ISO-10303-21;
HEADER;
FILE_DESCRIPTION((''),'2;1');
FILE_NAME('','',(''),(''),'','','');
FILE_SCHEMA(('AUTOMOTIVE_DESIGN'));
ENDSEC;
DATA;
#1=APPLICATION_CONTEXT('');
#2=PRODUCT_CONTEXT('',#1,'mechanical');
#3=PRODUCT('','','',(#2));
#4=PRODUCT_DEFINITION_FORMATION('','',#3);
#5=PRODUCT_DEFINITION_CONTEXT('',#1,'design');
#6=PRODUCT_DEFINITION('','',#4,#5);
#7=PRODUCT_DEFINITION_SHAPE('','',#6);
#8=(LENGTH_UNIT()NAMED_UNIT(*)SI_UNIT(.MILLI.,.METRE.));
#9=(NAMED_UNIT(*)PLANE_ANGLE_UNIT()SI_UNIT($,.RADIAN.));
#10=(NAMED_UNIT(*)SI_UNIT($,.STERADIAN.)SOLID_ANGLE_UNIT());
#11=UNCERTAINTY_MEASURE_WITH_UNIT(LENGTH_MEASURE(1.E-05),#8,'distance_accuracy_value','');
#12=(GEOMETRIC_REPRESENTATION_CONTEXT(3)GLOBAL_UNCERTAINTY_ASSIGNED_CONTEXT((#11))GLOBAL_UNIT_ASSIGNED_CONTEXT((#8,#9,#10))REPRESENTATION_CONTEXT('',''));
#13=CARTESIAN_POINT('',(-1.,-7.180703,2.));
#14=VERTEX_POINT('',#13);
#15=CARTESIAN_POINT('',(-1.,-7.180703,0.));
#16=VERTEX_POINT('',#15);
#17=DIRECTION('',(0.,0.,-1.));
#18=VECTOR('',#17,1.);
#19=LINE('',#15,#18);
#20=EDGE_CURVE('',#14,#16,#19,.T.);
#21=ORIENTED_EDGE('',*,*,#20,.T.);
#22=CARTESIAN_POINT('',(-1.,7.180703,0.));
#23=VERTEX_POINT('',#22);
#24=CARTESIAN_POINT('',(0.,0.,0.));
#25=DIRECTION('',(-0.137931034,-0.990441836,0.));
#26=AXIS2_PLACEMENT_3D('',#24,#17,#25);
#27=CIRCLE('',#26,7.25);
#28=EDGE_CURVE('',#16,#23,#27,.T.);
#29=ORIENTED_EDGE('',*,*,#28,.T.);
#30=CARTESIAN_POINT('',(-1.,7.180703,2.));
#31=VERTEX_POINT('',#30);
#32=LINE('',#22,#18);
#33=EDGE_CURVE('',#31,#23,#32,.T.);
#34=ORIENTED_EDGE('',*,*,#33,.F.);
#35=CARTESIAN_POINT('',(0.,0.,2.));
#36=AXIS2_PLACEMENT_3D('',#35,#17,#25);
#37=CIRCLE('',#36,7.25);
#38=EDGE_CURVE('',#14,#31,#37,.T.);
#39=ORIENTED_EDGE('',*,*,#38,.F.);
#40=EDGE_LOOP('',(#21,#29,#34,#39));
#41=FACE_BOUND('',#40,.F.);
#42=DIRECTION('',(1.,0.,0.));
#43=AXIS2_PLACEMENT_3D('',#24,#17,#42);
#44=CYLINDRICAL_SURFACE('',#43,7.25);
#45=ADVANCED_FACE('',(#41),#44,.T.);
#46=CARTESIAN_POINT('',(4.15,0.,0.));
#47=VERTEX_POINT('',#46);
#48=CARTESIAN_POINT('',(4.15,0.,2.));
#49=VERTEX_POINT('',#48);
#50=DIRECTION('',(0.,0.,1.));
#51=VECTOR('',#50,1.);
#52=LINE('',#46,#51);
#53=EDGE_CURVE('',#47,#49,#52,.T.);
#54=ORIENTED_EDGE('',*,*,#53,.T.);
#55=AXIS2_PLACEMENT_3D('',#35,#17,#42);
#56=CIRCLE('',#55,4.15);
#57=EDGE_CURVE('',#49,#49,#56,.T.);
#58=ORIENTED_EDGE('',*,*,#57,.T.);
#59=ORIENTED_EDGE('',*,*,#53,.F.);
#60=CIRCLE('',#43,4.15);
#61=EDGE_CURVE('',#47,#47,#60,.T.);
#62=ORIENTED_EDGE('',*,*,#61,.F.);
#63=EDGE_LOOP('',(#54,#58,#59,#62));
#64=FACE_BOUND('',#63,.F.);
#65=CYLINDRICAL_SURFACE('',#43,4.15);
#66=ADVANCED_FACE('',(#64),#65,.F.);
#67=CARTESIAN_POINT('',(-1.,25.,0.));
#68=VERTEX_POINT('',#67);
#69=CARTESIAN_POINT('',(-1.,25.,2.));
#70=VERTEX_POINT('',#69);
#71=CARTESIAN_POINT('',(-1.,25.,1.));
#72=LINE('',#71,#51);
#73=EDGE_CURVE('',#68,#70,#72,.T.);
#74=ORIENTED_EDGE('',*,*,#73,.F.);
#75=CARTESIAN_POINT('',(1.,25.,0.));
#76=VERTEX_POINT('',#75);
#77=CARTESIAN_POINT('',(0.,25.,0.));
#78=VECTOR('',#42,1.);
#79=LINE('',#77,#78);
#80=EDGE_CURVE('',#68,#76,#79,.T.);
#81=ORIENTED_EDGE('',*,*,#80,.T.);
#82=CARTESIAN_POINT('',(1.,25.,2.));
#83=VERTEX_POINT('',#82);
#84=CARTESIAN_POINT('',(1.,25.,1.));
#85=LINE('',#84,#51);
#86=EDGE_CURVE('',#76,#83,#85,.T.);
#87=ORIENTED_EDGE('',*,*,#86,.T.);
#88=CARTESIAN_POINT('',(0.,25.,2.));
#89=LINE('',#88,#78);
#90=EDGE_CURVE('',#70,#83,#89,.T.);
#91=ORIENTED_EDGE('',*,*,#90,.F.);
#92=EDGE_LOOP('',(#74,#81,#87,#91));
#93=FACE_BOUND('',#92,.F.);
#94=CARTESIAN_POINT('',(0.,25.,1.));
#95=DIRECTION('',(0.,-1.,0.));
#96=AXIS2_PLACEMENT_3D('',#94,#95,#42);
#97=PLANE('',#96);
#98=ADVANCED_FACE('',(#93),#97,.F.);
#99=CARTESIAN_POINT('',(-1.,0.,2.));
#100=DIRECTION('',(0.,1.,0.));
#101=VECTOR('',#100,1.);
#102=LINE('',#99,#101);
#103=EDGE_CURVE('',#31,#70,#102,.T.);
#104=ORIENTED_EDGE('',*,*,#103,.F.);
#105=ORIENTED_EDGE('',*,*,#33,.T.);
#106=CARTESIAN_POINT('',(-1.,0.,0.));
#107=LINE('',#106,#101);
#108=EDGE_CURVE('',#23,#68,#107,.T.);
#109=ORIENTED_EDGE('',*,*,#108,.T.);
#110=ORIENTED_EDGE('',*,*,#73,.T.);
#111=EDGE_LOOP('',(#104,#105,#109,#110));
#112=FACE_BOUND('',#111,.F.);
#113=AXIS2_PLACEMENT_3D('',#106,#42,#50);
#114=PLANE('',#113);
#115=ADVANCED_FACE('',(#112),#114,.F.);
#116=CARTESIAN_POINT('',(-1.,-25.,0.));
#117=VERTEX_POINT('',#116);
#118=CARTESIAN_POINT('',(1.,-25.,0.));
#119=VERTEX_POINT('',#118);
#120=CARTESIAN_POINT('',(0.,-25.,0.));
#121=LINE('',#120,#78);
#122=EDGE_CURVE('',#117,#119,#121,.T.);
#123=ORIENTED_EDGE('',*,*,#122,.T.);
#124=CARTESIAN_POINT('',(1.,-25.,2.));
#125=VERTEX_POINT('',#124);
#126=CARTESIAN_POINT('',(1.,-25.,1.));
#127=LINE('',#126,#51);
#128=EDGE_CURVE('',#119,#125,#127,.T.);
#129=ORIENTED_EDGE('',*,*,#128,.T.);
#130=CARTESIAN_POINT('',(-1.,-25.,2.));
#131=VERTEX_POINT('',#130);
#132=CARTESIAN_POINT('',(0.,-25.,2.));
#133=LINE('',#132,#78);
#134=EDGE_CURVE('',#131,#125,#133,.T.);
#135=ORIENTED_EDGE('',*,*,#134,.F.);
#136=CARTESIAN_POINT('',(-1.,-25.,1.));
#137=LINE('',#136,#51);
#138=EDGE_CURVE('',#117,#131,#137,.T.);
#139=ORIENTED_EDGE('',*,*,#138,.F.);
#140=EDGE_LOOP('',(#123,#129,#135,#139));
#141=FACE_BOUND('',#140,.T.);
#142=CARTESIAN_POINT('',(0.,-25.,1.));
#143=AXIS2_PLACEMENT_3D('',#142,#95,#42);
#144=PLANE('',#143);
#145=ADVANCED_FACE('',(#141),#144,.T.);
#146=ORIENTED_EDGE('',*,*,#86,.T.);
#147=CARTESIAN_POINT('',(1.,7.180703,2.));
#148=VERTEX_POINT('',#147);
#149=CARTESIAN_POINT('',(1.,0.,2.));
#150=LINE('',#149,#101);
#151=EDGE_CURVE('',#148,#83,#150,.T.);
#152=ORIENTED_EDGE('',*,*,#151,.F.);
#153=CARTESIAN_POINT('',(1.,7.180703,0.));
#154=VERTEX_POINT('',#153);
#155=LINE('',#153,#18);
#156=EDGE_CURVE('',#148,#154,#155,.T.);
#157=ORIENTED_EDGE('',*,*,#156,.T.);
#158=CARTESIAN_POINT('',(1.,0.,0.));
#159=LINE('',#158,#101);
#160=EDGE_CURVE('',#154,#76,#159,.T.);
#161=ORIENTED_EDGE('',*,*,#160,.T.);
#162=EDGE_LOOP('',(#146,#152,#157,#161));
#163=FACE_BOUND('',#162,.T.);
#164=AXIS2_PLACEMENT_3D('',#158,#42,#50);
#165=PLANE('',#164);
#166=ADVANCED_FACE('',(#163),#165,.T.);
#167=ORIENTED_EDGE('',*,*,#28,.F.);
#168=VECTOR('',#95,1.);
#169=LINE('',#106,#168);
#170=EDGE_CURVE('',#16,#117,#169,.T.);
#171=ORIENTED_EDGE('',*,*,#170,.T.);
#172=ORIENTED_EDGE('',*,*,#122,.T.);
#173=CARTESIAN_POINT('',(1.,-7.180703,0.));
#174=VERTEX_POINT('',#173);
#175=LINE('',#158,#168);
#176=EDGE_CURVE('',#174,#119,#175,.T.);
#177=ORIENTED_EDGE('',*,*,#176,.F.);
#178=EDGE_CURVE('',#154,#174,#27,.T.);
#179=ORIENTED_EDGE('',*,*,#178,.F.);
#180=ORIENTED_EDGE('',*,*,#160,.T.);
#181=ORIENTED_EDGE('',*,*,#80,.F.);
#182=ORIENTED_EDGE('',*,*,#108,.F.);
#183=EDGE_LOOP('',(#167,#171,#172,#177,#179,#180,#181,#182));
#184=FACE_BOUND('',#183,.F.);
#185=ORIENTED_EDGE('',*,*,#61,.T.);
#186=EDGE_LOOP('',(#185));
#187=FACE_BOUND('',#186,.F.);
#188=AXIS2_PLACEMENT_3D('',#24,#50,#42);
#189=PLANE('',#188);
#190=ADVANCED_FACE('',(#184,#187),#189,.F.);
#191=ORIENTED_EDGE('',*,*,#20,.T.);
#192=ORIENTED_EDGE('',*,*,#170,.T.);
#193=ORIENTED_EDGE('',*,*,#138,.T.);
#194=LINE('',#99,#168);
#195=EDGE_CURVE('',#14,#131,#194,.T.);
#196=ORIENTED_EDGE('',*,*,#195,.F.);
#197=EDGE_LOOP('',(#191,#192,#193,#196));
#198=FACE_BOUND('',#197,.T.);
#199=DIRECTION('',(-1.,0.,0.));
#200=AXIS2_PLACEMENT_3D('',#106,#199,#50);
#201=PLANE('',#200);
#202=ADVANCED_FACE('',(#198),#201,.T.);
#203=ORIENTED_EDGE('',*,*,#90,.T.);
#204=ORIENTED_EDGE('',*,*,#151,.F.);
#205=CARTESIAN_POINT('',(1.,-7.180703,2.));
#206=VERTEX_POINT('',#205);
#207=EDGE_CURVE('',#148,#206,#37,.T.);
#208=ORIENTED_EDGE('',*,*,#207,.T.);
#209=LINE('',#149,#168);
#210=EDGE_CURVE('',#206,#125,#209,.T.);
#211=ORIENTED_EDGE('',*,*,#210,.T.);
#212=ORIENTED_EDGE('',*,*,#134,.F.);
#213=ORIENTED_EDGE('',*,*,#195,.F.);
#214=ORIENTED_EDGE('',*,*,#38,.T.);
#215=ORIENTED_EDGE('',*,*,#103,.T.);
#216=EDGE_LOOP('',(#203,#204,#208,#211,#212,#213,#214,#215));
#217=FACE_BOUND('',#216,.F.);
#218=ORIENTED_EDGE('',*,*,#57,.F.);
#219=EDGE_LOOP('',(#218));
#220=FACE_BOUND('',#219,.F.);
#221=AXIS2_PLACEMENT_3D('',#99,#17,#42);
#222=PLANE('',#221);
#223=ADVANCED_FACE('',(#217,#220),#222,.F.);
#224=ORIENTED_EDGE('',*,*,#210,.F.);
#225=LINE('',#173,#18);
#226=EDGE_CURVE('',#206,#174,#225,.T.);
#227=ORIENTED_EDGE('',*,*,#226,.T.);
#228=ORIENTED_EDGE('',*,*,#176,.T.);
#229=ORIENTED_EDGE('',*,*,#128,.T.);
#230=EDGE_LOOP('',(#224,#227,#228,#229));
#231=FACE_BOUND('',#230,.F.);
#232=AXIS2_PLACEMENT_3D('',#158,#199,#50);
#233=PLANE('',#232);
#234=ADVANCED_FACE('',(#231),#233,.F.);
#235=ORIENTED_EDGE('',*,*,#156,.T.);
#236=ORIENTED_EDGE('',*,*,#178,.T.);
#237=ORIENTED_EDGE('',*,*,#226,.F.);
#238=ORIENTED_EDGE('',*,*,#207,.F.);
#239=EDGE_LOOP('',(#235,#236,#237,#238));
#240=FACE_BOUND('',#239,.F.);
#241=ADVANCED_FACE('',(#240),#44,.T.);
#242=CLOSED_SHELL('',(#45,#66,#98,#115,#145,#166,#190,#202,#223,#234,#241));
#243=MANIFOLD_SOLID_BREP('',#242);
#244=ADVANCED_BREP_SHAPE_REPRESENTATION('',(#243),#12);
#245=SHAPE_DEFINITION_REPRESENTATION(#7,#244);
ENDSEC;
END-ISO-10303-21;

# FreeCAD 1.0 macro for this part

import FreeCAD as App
import Part
import Sketcher
Q = App.Units.Quantity

doc = App.newDocument("Part")
body = doc.addObject("PartDesign::Body", "Body")

# Sketch on XY plane
sketch1 = body.newObject("Sketcher::SketchObject", "Sketch")
sketch1.AttachmentSupport = (doc.getObject("XY_Plane"), [""])
sketch1.MapMode = "FlatFace"
sketch1.addGeometry(Part.Circle(App.Vector(0, 0, 0), App.Vector(0, 0, 1), 7), False)
sketch1.addConstraint([
    Sketcher.Constraint("Coincident", 0, 3, -1, 1),
    Sketcher.Constraint("Diameter", 0, Q("14.5 mm")),
])
pad1 = body.newObject("PartDesign::Pad", "Pad")
pad1.Profile = sketch1
pad1.Length = 2

# Sketch on XZ plane
sketch2 = body.newObject("Sketcher::SketchObject", "Sketch001")
sketch2.AttachmentSupport = (doc.getObject("XZ_Plane"), [""])
sketch2.MapMode = "FlatFace"
sketch2.addGeometry([
    Part.LineSegment(App.Vector(-1, 2, 0), App.Vector(-1, 0, 0)),
    Part.LineSegment(App.Vector(-1, 0, 0), App.Vector(1, 0, 0)),
    Part.LineSegment(App.Vector(1, 0, 0), App.Vector(1, 2, 0)),
    Part.LineSegment(App.Vector(1, 2, 0), App.Vector(-1, 2, 0)),
], False)
sketch2.addConstraint([
    Sketcher.Constraint("Coincident", 0, 2, 1, 1),
    Sketcher.Constraint("Coincident", 1, 2, 2, 1),
    Sketcher.Constraint("Coincident", 2, 2, 3, 1),
    Sketcher.Constraint("Coincident", 3, 2, 0, 1),
    Sketcher.Constraint("Vertical", 0),
    Sketcher.Constraint("Horizontal", 1),
    Sketcher.Constraint("Vertical", 2),
    Sketcher.Constraint("Horizontal", 3),
    Sketcher.Constraint("Symmetric", 0, 2, 1, 2, -1, 1),
    Sketcher.Constraint("Equal", 3, 0),
    Sketcher.Constraint("DistanceX", 1, 1, 1, 2, Q("2 mm")),
])
pad2 = body.newObject("PartDesign::Pad", "Pad001")
pad2.Profile = sketch2
pad2.Type = "TwoLengths"
pad2.Length = 25
pad2.Length2 = 25

# Sketch on XY plane
sketch3 = body.newObject("Sketcher::SketchObject", "Sketch002")
sketch3.AttachmentSupport = (doc.getObject("XY_Plane"), [""])
sketch3.MapMode = "FlatFace"
sketch3.addGeometry(Part.Circle(App.Vector(0, 0, 0), App.Vector(0, 0, 1), 4.2), False)
sketch3.addConstraint([
    Sketcher.Constraint("Coincident", 0, 3, -1, 1),
    Sketcher.Constraint("Diameter", 0, Q("8.3 mm")),
])
pocket1 = body.newObject("PartDesign::Pocket", "Pocket")
pocket1.Profile = sketch3
pocket1.Length = 25
pocket1.Reversed = True

doc.recompute()
